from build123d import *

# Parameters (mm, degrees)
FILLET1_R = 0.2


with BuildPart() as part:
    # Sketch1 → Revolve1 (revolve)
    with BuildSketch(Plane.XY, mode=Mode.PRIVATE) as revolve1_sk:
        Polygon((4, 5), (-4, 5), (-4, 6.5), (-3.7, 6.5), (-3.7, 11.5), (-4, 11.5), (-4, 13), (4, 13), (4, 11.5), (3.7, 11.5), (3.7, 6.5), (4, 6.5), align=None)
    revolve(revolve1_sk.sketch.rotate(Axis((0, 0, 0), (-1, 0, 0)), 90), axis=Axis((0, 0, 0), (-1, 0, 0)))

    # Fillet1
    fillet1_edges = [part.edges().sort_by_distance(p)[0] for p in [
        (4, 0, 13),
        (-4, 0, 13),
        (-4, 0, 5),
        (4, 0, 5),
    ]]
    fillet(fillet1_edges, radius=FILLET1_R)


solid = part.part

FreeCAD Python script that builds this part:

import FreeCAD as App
import Part
import Sketcher


def edges_at(feature, points):
    """Names of the edges that pass closest to the given points."""
    edges = feature.Shape.Edges
    near = lambda p: min(range(len(edges)), key=lambda i: edges[i].distToShape(Part.Vertex(*p))[0])
    return sorted({f"Edge{near(p) + 1}" for p in points})


def add_polygon(sketch, points):
    """Adds a closed chain of lines whose ends are joined by coincident constraints."""
    first, n = sketch.GeometryCount, len(points)
    for a, b in zip(points, points[1:] + points[:1]):
        sketch.addGeometry(Part.LineSegment(App.Vector(*a, 0), App.Vector(*b, 0)), False)
    for i in range(n):
        sketch.addConstraint(Sketcher.Constraint("Coincident", first + i, 2, first + (i + 1) % n, 1))

doc = App.newDocument("Part")
body = doc.addObject("PartDesign::Body", "Body")

# Sketch on XY plane
sketch1 = body.newObject("Sketcher::SketchObject", "Sketch")
sketch1.AttachmentSupport = (doc.getObject("XY_Plane"), [""])
sketch1.MapMode = "FlatFace"
add_polygon(sketch1, [(-4, 5), (4, 5), (4, 6.5), (3.7, 6.5), (3.7, 11.5), (4, 11.5), (4, 13), (-4, 13), (-4, 11.5), (-3.7, 11.5), (-3.7, 6.5), (-4, 6.5)])  # lines 0-11
sketch1.addConstraint(Sketcher.Constraint("Horizontal", 0))
sketch1.addConstraint(Sketcher.Constraint("Vertical", 1))
sketch1.addConstraint(Sketcher.Constraint("Horizontal", 2))
sketch1.addConstraint(Sketcher.Constraint("Vertical", 3))
sketch1.addConstraint(Sketcher.Constraint("Horizontal", 4))
sketch1.addConstraint(Sketcher.Constraint("Vertical", 5))
sketch1.addConstraint(Sketcher.Constraint("Horizontal", 6))
sketch1.addConstraint(Sketcher.Constraint("Vertical", 7))
sketch1.addConstraint(Sketcher.Constraint("Horizontal", 8))
sketch1.addConstraint(Sketcher.Constraint("Vertical", 9))
sketch1.addConstraint(Sketcher.Constraint("Horizontal", 10))
sketch1.addConstraint(Sketcher.Constraint("Vertical", 11))
sketch1.addConstraint(Sketcher.Constraint("Symmetric", 4, 2, 7, 2, -2))
sketch1.addConstraint(Sketcher.Constraint("Symmetric", 2, 2, 9, 2, -2))
sketch1.addConstraint(Sketcher.Constraint("Vertical", 1, 2, 4, 2))
sketch1.addConstraint(Sketcher.Constraint("Vertical", 7, 2, 10, 2))
sketch1.addConstraint(Sketcher.Constraint("Equal", 1, 5))
sketch1.addConstraint(Sketcher.Constraint("DistanceX", 0, 1, 0, 2, 8.0))
sketch1.addConstraint(Sketcher.Constraint("DistanceY", 3, 1, 3, 2, 5.0))
sketch1.addConstraint(Sketcher.Constraint("DistanceX", 2, 2, 2, 1, 0.3))
sketch1.addConstraint(Sketcher.Constraint("DistanceY", 1, 1, 1, 2, 1.5))
sketch1.addConstraint(Sketcher.Constraint("DistanceY", -1, 1, 0, 2, 5.0))
revolution = body.newObject("PartDesign::Revolution", "Revolution")
revolution.Profile = sketch1
revolution.ReferenceAxis = (sketch1, ["H_Axis"])
revolution.Angle = 360
doc.recompute()

fillet = body.newObject("PartDesign::Fillet", "Fillet")
fillet.Base = (revolution, edges_at(revolution, [
    (4, 0, 13),
    (-4, 0, 13),
    (-4, 0, 5),
    (4, 0, 5),
]))
fillet.Radius = 0.2

doc.recompute()
